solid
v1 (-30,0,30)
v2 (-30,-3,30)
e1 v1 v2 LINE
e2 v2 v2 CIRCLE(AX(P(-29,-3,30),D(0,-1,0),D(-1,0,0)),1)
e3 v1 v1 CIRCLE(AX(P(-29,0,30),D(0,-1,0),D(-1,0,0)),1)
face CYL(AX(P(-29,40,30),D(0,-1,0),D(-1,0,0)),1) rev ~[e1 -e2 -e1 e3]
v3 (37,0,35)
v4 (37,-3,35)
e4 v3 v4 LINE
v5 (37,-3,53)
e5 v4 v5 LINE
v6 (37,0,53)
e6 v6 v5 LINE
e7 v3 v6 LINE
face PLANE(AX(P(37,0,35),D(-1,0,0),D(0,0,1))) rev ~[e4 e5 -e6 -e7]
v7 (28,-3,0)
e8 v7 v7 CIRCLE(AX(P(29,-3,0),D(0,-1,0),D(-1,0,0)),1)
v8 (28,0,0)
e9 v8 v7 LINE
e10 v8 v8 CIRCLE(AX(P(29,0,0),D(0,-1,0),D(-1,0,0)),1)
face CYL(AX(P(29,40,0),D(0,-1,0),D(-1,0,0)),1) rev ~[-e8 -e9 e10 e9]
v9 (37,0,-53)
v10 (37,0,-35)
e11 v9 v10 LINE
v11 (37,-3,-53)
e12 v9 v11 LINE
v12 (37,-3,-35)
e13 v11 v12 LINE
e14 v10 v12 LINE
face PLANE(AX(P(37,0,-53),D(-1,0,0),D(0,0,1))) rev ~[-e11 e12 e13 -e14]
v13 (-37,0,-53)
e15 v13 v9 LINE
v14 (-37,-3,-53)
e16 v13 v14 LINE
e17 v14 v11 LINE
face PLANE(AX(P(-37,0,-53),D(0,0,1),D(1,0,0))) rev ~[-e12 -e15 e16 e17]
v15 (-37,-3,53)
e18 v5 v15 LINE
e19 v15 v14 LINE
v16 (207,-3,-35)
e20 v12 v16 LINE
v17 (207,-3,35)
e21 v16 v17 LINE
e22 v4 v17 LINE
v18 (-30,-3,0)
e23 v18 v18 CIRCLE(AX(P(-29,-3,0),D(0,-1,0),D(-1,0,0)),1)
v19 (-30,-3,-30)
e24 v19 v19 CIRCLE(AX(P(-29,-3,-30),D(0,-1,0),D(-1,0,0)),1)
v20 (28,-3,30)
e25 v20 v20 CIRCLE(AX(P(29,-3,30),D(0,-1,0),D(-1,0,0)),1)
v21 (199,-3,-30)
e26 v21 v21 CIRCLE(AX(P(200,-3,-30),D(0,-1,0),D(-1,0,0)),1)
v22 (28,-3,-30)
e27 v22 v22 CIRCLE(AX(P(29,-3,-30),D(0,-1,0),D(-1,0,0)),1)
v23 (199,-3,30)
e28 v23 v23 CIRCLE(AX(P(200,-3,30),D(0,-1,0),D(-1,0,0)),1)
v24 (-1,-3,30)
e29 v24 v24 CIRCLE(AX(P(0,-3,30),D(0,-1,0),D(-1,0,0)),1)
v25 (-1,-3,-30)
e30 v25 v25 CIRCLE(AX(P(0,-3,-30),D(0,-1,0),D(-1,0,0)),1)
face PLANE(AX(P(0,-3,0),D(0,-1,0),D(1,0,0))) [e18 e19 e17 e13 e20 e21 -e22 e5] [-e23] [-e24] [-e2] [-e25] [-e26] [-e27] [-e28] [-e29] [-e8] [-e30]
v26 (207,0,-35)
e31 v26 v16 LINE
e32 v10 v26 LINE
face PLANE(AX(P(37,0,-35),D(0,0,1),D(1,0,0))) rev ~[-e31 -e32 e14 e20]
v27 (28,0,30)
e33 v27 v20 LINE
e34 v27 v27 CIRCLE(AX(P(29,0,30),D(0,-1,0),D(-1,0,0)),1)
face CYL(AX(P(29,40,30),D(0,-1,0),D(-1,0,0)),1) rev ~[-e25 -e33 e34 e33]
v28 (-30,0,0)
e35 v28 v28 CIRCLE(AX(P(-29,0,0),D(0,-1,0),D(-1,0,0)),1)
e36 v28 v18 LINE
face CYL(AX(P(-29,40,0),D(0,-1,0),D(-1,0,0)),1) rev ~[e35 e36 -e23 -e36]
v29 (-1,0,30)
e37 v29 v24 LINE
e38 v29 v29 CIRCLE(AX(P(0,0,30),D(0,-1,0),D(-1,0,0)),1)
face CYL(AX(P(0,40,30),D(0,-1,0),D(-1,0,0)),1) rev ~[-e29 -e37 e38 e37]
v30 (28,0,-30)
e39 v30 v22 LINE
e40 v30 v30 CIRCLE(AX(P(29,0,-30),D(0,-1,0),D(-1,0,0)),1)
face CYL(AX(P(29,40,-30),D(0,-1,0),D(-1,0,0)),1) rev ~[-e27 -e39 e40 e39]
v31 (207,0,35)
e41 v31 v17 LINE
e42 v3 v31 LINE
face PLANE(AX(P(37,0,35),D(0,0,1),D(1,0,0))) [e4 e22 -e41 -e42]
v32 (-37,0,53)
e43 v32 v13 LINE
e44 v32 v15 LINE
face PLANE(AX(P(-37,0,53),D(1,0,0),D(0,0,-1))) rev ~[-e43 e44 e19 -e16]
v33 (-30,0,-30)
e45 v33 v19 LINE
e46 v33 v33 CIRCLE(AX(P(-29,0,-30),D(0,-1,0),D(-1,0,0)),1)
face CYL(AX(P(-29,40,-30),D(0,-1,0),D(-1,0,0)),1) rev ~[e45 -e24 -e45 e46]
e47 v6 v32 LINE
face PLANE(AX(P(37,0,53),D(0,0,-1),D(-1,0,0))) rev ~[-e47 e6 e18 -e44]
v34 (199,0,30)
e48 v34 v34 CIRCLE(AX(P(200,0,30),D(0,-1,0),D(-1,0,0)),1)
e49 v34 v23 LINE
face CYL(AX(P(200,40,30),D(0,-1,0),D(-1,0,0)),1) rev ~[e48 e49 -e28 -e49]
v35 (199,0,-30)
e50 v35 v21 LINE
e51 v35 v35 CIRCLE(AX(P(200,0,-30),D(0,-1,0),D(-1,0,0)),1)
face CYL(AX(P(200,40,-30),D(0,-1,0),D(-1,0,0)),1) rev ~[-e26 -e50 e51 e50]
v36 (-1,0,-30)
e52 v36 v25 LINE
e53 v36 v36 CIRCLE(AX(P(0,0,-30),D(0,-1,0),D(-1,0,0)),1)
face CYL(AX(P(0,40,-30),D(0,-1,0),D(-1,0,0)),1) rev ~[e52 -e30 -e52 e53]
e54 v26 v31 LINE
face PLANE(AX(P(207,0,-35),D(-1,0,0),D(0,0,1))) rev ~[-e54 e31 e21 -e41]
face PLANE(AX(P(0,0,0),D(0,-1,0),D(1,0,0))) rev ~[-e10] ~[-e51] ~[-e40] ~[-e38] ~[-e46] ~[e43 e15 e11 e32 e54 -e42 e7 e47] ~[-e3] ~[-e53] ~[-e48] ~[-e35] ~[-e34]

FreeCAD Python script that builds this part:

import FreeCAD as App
import Part
import Sketcher

V = App.Vector
Q = App.Units.Quantity


def add_polygon(sketch, points):
    """Adds a closed chain of lines whose ends are joined by coincident constraints."""
    first, n = sketch.GeometryCount, len(points)
    for a, b in zip(points, points[1:] + points[:1]):
        sketch.addGeometry(Part.LineSegment(App.Vector(*a, 0), App.Vector(*b, 0)), False)
    for i in range(n):
        sketch.addConstraint(Sketcher.Constraint("Coincident", first + i, 2, first + (i + 1) % n, 1))

doc = App.newDocument("Part")
body = doc.addObject("PartDesign::Body", "Body")

# Sketch on XZ plane
sketch1 = doc.addObject("Sketcher::SketchObject", "Sketch")
body.addObject(sketch1)
sketch1.AttachmentSupport = (doc.XZ_Plane, [""])
sketch1.MapMode = "FlatFace"
add_polygon(sketch1, [(37, 53), (-37, 53), (-37, -53), (37, -53), (37, -35), (207, -35), (207, 35), (37, 35)])  # lines 0-7
sketch1.addConstraint(Sketcher.Constraint("Horizontal", 0))
sketch1.addConstraint(Sketcher.Constraint("Vertical", 1))
sketch1.addConstraint(Sketcher.Constraint("Horizontal", 2))
sketch1.addConstraint(Sketcher.Constraint("Vertical", 3))
sketch1.addConstraint(Sketcher.Constraint("Horizontal", 4))
sketch1.addConstraint(Sketcher.Constraint("Vertical", 5))
sketch1.addConstraint(Sketcher.Constraint("Horizontal", 6))
sketch1.addConstraint(Sketcher.Constraint("Vertical", 7))
sketch1.addConstraint(Sketcher.Constraint("Symmetric", 0, 2, 2, 2, -1, 1))
sketch1.addConstraint(Sketcher.Constraint("Symmetric", 3, 2, 6, 2, -1))
sketch1.addConstraint(Sketcher.Constraint("DistanceX", 0, 2, 0, 1, Q("74 mm")))
sketch1.addConstraint(Sketcher.Constraint("DistanceX", 4, 1, 4, 2, Q("170 mm")))
sketch1.addConstraint(Sketcher.Constraint("DistanceY", 1, 2, 1, 1, Q("106 mm")))
sketch1.addConstraint(Sketcher.Constraint("DistanceY", 3, 1, 3, 2, Q("18 mm")))
pad1 = doc.addObject("PartDesign::Pad", "Pad")
body.addObject(pad1)
pad1.Profile = sketch1
pad1.Length = 3

# Sketch on XZ plane
sketch2 = doc.addObject("Sketcher::SketchObject", "Sketch001")
body.addObject(sketch2)
sketch2.AttachmentSupport = (doc.XZ_Plane, [""])
sketch2.MapMode = "FlatFace"
sketch2.addGeometry(Part.Circle(V(-29, 0, 0), V(0, 0, 1), 1), False)
sketch2.addGeometry(Part.Circle(V(29, 0, 0), V(0, 0, 1), 1), False)
sketch2.addConstraint(Sketcher.Constraint("Equal", 0, 1))
sketch2.addConstraint(Sketcher.Constraint("Symmetric", 0, 3, 1, 3, -1, 1))
sketch2.addConstraint(Sketcher.Constraint("PointOnObject", 0, 3, -1))
sketch2.addConstraint(Sketcher.Constraint("Diameter", 0, Q("2 mm")))
sketch2.addConstraint(Sketcher.Constraint("DistanceX", 0, 3, -1, 1, Q("29 mm")))
doc.recompute()
hole = doc.addObject("PartDesign::Hole", "Hole")
body.addObject(hole)
hole.Profile = sketch2
hole.ThreadType = "None"
hole.Diameter = 2
hole.DepthType = "Dimension"
hole.Depth = 40
hole.DrillPoint = "Flat"
hole.Reversed = True

# Sketch on XZ plane
sketch3 = doc.addObject("Sketcher::SketchObject", "Sketch002")
body.addObject(sketch3)
sketch3.AttachmentSupport = (doc.XZ_Plane, [""])
sketch3.MapMode = "FlatFace"
sketch3.addGeometry(Part.Circle(V(29, 30, 0), V(0, 0, 1), 1), False)
sketch3.addGeometry(Part.Circle(V(-29, 30, 0), V(0, 0, 1), 1), False)
sketch3.addGeometry(Part.Circle(V(29, -30, 0), V(0, 0, 1), 1), False)
sketch3.addGeometry(Part.Circle(V(-29, -30, 0), V(0, 0, 1), 1), False)
sketch3.addConstraint(Sketcher.Constraint("Equal", 0, 1))
sketch3.addConstraint(Sketcher.Constraint("Equal", 1, 2))
sketch3.addConstraint(Sketcher.Constraint("Equal", 2, 3))
sketch3.addConstraint(Sketcher.Constraint("Symmetric", 1, 3, 2, 3, -1, 1))
sketch3.addConstraint(Sketcher.Constraint("Symmetric", 0, 3, 3, 3, -1, 1))
sketch3.addConstraint(Sketcher.Constraint("Symmetric", 0, 3, 1, 3, -2))
sketch3.addConstraint(Sketcher.Constraint("Diameter", 0, Q("2 mm")))
sketch3.addConstraint(Sketcher.Constraint("DistanceX", -1, 1, 0, 3, Q("29 mm")))
sketch3.addConstraint(Sketcher.Constraint("DistanceY", -1, 1, 0, 3, Q("30 mm")))
doc.recompute()
hole2 = doc.addObject("PartDesign::Hole", "Hole001")
body.addObject(hole2)
hole2.Profile = sketch3
hole2.ThreadType = "None"
hole2.Diameter = 2
hole2.DepthType = "Dimension"
hole2.Depth = 40
hole2.DrillPoint = "Flat"
hole2.Reversed = True

# Sketch on XZ plane
sketch4 = doc.addObject("Sketcher::SketchObject", "Sketch003")
body.addObject(sketch4)
sketch4.AttachmentSupport = (doc.XZ_Plane, [""])
sketch4.MapMode = "FlatFace"
sketch4.addGeometry(Part.Circle(V(0, 30, 0), V(0, 0, 1), 1), False)
sketch4.addGeometry(Part.Circle(V(0, -30, 0), V(0, 0, 1), 1), False)
sketch4.addGeometry(Part.Circle(V(200, 30, 0), V(0, 0, 1), 1), False)
sketch4.addGeometry(Part.Circle(V(200, -30, 0), V(0, 0, 1), 1), False)
sketch4.addConstraint(Sketcher.Constraint("Equal", 0, 1))
sketch4.addConstraint(Sketcher.Constraint("Equal", 1, 2))
sketch4.addConstraint(Sketcher.Constraint("Equal", 2, 3))
sketch4.addConstraint(Sketcher.Constraint("Symmetric", 0, 3, 1, 3, -1, 1))
sketch4.addConstraint(Sketcher.Constraint("Symmetric", 2, 3, 3, 3, -1))
sketch4.addConstraint(Sketcher.Constraint("PointOnObject", 0, 3, -2))
sketch4.addConstraint(Sketcher.Constraint("Horizontal", 0, 3, 2, 3))
sketch4.addConstraint(Sketcher.Constraint("Diameter", 0, Q("2 mm")))
sketch4.addConstraint(Sketcher.Constraint("DistanceY", -1, 1, 0, 3, Q("30 mm")))
sketch4.addConstraint(Sketcher.Constraint("DistanceX", -1, 1, 2, 3, Q("200 mm")))
doc.recompute()
hole3 = doc.addObject("PartDesign::Hole", "Hole002")
body.addObject(hole3)
hole3.Profile = sketch4
hole3.ThreadType = "None"
hole3.Diameter = 2
hole3.DepthType = "Dimension"
hole3.Depth = 40
hole3.DrillPoint = "Flat"
hole3.Reversed = True

doc.recompute()
